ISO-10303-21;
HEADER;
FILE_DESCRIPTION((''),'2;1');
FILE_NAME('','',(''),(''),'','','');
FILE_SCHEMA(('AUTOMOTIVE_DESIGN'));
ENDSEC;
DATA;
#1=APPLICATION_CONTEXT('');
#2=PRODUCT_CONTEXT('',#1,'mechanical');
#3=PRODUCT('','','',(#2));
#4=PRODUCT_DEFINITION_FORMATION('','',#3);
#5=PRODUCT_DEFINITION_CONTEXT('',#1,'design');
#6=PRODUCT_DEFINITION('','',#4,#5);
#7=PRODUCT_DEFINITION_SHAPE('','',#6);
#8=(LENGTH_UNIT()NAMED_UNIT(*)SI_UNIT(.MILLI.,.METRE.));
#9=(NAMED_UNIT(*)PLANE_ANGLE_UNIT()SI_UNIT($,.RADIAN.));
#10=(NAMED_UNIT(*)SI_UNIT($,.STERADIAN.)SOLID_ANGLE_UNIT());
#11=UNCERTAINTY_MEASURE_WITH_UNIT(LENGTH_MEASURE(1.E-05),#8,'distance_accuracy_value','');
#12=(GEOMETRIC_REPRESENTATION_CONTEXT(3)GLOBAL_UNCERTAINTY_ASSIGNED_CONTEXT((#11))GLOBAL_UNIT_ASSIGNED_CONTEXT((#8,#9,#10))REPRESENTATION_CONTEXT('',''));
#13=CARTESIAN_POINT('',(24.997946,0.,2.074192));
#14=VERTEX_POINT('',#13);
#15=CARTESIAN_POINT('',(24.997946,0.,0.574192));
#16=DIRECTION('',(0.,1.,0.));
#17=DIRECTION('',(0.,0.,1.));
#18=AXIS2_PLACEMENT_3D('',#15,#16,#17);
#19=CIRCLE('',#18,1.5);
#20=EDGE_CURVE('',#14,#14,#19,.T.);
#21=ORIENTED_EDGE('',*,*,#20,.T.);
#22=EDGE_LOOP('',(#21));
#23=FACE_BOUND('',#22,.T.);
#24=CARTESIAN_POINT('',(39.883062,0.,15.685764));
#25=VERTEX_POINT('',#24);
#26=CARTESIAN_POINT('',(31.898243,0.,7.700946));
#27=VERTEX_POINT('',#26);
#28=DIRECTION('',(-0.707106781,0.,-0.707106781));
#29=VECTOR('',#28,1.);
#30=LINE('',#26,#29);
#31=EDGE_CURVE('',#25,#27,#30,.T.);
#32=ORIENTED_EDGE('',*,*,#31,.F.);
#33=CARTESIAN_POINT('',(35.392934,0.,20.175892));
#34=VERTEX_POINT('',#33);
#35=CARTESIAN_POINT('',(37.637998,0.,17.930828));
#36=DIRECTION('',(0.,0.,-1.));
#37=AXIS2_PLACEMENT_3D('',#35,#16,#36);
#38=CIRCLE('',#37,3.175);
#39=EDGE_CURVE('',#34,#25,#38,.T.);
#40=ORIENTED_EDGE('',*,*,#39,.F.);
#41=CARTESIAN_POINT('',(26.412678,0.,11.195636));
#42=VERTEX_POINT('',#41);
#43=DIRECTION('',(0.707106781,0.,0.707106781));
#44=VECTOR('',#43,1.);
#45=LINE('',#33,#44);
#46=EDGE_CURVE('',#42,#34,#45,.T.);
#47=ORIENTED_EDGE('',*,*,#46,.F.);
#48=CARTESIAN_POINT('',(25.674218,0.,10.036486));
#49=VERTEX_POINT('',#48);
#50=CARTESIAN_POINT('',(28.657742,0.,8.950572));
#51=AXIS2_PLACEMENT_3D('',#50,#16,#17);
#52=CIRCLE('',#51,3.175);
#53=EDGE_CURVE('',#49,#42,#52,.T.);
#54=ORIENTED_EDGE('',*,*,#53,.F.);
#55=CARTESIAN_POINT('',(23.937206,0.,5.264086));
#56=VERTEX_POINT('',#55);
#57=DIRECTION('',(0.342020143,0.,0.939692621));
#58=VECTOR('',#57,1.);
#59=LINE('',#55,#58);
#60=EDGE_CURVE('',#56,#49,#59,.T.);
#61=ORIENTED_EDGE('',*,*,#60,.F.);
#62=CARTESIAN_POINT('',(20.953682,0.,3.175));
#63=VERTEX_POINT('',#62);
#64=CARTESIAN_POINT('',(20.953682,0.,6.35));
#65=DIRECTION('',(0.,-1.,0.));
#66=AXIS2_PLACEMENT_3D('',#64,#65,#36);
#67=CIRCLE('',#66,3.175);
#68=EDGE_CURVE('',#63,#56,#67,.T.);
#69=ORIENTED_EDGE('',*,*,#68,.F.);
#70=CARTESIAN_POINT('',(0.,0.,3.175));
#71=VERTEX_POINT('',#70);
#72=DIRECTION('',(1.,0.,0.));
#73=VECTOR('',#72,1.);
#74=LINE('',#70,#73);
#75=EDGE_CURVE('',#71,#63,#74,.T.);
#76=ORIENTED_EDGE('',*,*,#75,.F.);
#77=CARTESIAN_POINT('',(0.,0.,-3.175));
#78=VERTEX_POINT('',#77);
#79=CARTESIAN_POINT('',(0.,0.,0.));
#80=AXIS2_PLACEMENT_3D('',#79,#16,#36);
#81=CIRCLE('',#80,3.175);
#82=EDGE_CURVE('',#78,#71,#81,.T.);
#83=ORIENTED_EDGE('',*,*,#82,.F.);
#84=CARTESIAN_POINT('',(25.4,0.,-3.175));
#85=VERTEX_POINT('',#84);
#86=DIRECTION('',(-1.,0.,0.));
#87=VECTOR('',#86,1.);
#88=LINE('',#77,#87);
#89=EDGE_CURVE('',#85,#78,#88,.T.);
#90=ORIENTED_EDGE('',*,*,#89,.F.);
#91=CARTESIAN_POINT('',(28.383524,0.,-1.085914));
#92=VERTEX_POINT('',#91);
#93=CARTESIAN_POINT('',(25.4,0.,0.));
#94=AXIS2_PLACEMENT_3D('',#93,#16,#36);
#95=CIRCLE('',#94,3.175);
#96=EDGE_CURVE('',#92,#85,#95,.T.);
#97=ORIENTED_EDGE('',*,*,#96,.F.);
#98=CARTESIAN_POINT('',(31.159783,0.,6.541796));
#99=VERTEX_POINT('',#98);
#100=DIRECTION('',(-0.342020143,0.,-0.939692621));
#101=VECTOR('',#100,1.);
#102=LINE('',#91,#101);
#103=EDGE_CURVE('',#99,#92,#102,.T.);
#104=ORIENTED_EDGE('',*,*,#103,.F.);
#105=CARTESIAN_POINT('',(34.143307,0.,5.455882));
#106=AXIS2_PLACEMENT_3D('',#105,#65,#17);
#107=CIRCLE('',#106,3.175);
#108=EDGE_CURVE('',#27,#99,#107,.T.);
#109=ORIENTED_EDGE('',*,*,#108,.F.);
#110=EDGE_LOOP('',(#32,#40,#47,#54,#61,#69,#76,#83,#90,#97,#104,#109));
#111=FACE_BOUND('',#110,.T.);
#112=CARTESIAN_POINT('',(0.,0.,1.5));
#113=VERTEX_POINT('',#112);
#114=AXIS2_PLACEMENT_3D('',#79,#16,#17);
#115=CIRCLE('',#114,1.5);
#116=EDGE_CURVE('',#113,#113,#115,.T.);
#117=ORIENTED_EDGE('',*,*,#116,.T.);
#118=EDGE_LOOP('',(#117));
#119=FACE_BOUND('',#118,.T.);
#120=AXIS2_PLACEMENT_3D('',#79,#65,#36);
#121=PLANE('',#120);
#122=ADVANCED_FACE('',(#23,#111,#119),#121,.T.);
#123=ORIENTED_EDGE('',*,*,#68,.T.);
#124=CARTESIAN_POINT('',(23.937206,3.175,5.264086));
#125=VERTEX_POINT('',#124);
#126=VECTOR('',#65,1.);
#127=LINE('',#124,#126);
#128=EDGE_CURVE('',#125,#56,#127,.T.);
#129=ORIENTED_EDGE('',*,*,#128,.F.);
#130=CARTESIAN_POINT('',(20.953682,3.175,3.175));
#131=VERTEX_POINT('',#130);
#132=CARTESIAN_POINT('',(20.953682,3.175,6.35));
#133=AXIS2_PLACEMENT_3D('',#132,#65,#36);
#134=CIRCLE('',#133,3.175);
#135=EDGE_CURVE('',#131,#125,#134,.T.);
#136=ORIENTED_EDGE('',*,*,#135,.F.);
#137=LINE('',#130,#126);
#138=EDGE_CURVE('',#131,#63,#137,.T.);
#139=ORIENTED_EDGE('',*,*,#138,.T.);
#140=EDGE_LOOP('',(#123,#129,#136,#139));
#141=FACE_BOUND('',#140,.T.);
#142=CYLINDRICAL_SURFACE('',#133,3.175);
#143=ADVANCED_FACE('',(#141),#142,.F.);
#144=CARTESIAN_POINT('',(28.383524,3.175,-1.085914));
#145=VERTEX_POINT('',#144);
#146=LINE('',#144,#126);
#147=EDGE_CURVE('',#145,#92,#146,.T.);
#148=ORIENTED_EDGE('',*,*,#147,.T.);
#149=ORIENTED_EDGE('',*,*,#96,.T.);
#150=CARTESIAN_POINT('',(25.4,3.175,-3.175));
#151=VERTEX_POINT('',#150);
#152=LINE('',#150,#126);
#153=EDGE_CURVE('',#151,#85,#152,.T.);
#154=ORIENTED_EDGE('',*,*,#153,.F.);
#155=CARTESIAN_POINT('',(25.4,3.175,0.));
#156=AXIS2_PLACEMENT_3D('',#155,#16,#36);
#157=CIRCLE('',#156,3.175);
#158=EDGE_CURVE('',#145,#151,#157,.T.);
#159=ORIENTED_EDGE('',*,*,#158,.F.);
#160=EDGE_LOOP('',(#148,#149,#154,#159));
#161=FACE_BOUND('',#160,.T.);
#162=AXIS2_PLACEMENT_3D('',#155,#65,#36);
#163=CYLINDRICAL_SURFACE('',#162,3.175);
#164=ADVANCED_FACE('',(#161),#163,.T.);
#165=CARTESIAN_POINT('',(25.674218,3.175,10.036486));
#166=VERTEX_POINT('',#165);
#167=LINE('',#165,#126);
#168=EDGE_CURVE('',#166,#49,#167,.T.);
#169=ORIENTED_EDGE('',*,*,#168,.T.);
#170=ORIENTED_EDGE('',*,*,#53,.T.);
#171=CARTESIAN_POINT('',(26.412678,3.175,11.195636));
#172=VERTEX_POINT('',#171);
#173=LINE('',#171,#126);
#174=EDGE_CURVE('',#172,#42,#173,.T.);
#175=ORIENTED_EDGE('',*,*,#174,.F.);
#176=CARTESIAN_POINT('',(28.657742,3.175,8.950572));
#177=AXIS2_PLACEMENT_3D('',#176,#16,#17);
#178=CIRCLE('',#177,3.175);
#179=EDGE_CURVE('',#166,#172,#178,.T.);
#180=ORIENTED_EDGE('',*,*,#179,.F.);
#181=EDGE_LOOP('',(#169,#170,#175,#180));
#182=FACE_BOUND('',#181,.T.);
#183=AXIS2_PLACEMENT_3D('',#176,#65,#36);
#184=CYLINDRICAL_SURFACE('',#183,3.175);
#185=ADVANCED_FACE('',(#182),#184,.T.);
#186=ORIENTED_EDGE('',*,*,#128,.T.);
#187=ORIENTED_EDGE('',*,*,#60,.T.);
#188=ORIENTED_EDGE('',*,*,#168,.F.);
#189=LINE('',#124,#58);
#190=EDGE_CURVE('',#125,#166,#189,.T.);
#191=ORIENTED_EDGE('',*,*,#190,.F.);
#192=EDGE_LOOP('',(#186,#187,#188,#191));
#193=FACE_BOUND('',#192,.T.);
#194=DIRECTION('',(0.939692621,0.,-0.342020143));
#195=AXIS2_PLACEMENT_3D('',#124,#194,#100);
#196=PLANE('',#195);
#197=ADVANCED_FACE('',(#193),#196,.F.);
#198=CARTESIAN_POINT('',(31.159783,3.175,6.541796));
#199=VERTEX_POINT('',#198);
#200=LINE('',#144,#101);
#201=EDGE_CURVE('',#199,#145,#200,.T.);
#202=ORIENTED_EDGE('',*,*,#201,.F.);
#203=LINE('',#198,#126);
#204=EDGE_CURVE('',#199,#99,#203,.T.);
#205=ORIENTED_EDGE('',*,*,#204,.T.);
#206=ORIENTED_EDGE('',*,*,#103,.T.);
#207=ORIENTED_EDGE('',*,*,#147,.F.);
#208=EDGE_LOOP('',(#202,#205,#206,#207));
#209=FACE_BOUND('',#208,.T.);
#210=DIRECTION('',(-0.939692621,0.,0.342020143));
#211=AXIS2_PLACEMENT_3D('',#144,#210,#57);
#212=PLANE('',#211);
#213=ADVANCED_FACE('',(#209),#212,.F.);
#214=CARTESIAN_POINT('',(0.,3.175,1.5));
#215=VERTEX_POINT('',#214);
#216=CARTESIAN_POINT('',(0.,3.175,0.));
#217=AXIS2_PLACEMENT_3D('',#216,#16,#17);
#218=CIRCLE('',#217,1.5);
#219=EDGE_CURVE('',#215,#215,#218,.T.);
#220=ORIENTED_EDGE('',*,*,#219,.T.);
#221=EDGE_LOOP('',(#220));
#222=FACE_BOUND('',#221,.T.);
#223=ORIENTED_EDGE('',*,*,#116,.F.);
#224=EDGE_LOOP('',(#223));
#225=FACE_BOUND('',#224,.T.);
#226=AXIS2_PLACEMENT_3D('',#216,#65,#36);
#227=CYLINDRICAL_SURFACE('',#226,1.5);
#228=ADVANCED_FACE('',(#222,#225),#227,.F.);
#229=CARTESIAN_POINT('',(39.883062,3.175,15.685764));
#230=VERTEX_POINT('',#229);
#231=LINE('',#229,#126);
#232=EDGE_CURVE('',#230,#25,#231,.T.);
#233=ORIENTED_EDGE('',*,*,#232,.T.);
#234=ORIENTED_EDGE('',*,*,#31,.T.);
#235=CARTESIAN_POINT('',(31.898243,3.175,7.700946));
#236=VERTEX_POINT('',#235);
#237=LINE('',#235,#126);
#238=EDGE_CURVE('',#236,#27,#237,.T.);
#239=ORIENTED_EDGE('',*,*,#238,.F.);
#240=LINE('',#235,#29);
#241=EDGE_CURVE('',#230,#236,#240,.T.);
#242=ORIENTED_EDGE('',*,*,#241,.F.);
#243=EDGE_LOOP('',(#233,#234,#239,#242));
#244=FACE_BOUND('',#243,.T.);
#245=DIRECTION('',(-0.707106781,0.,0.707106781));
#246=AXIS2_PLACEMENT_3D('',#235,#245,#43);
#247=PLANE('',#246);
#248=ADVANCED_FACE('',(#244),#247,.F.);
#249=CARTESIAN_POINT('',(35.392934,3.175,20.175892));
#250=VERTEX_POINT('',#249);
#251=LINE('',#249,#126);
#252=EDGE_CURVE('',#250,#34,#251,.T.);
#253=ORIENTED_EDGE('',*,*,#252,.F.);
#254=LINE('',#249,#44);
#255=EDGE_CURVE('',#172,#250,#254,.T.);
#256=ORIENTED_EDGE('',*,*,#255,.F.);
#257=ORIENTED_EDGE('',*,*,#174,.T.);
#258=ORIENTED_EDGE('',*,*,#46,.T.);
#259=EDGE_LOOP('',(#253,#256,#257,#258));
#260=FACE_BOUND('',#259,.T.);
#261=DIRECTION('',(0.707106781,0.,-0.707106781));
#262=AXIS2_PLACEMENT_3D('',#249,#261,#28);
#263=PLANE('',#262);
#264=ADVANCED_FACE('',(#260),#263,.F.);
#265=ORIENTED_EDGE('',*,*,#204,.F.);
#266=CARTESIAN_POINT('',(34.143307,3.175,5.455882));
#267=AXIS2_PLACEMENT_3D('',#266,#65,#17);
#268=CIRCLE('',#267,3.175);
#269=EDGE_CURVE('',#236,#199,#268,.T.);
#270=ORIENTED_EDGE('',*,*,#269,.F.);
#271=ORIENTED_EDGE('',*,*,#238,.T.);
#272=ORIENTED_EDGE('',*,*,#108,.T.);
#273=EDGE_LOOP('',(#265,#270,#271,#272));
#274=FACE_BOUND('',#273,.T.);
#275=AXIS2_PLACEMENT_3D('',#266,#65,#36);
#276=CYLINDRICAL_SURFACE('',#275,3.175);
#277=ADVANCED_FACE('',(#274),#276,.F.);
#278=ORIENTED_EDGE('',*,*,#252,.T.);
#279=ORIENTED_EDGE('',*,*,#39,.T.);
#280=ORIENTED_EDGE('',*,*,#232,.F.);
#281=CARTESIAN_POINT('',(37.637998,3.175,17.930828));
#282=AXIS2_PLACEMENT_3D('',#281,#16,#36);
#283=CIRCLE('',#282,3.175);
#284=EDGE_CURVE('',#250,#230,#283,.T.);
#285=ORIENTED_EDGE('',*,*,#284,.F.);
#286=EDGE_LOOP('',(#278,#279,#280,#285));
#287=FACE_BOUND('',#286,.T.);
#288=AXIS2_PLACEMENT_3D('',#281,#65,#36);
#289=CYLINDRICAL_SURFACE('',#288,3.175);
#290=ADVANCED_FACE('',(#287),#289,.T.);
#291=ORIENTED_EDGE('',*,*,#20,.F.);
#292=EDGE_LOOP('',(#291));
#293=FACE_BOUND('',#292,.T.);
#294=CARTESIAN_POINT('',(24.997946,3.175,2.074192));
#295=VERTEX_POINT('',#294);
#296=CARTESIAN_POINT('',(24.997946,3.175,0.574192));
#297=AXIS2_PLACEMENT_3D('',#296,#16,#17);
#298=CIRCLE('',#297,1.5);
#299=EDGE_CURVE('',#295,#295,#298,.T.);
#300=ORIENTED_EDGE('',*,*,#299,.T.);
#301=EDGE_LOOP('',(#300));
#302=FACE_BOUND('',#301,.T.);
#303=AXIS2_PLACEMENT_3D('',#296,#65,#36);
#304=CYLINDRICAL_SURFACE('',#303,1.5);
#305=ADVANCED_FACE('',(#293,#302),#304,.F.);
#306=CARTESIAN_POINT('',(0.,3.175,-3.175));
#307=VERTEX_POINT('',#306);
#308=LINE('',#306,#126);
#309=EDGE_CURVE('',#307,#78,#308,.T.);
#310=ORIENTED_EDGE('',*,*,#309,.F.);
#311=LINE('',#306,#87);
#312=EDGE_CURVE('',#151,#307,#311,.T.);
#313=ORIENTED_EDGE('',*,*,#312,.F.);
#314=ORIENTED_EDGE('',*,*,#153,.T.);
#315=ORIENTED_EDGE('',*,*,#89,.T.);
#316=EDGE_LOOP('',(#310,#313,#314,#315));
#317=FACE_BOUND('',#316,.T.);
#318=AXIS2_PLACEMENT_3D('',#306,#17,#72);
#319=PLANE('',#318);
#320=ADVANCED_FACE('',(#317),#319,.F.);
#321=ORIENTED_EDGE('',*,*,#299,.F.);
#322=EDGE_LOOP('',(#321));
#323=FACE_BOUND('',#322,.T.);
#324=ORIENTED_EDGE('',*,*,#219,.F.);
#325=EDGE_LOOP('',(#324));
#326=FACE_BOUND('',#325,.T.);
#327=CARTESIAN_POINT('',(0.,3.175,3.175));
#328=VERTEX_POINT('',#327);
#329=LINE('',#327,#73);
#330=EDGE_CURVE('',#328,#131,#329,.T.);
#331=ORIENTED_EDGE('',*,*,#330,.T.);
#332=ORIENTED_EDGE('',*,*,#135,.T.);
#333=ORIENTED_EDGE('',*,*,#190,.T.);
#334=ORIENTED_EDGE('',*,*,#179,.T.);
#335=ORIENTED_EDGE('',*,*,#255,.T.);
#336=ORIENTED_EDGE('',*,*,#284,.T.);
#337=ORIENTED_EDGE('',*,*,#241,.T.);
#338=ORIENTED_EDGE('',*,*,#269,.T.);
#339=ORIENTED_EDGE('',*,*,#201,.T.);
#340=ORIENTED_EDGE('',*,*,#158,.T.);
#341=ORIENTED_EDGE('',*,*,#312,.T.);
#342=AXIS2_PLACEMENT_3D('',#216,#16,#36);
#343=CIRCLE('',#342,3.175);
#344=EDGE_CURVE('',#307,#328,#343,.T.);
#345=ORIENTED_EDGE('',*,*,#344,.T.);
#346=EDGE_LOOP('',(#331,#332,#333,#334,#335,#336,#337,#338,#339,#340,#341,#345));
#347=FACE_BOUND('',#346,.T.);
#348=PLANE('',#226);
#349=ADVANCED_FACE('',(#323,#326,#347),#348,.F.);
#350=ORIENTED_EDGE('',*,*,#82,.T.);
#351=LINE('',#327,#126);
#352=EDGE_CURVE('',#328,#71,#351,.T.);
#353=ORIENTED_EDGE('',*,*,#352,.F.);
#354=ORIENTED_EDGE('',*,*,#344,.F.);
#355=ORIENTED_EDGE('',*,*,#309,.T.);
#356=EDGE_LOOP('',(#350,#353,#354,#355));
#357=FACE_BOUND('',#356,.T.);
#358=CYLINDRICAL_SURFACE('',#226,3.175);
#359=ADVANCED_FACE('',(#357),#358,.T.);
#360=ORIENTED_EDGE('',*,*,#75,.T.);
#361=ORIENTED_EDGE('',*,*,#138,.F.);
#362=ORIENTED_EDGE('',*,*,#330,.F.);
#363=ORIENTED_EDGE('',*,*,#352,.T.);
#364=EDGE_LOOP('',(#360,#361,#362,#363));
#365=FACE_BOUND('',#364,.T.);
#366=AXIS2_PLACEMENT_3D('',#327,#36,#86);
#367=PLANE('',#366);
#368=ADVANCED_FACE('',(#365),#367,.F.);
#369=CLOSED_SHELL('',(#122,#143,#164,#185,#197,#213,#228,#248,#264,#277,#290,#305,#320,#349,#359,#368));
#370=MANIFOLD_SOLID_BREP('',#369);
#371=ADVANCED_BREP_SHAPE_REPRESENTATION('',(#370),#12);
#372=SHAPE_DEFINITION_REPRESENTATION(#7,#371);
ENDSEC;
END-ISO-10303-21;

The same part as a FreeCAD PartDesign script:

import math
import FreeCAD as App
import Part
import Sketcher
Q = App.Units.Quantity

doc = App.newDocument("Part")
body = doc.addObject("PartDesign::Body", "Body")

# Sketch on XZ plane
sketch1 = doc.addObject("Sketcher::SketchObject", "Sketch")
body.addObject(sketch1)
sketch1.AttachmentSupport = (doc.XZ_Plane, [""])
sketch1.MapMode = "FlatFace"
sketch1.addGeometry([
    Part.LineSegment(App.Vector(0, 3.2, 0), App.Vector(21, 3.2, 0)),  # 0
    Part.ArcOfCircle(Part.Circle(App.Vector(21, 6.3, 0), App.Vector(0, 0, 1), 3.2), math.radians(-90), math.radians(-20)),  # 1
    Part.LineSegment(App.Vector(23.9, 5.3, 0), App.Vector(25.7, 10, 0)),  # 2
    Part.ArcOfCircle(Part.Circle(App.Vector(28.7, 9, 0), App.Vector(0, 0, 1), 3.2), math.radians(135), math.radians(160)),  # 3
    Part.LineSegment(App.Vector(26.4, 11.2, 0), App.Vector(35.4, 20.2, 0)),  # 4
    Part.ArcOfCircle(Part.Circle(App.Vector(37.6, 17.9, 0), App.Vector(0, 0, 1), 3.2), math.radians(-45), math.radians(135)),  # 5
    Part.LineSegment(App.Vector(39.9, 15.7, 0), App.Vector(31.9, 7.7, 0)),  # 6
    Part.ArcOfCircle(Part.Circle(App.Vector(34.1, 5.5, 0), App.Vector(0, 0, 1), 3.2), math.radians(135), math.radians(160)),  # 7
    Part.LineSegment(App.Vector(31.2, 6.5, 0), App.Vector(28.4, -1.1, 0)),  # 8
    Part.ArcOfCircle(Part.Circle(App.Vector(25.4, 0, 0), App.Vector(0, 0, 1), 3.2), math.radians(-90), math.radians(-20)),  # 9
    Part.LineSegment(App.Vector(25.4, -3.2, 0), App.Vector(0, -3.2, 0)),  # 10
    Part.ArcOfCircle(Part.Circle(App.Vector(0, 0, 0), App.Vector(0, 0, 1), 3.2), math.radians(90), math.radians(270)),  # 11
    Part.Circle(App.Vector(25, 0.6, 0), App.Vector(0, 0, 1), 1.5),  # 12
    Part.Circle(App.Vector(0, 0, 0), App.Vector(0, 0, 1), 1.5),  # 13
], False)
sketch1.addConstraint([
    Sketcher.Constraint("Tangent", 0, 2, 1, 1),
    Sketcher.Constraint("Tangent", 1, 2, 2, 1),
    Sketcher.Constraint("Tangent", 2, 2, 3, 2),
    Sketcher.Constraint("Tangent", 3, 1, 4, 1),
    Sketcher.Constraint("Tangent", 4, 2, 5, 2),
    Sketcher.Constraint("Tangent", 5, 1, 6, 1),
    Sketcher.Constraint("Tangent", 6, 2, 7, 1),
    Sketcher.Constraint("Tangent", 7, 2, 8, 1),
    Sketcher.Constraint("Tangent", 8, 2, 9, 2),
    Sketcher.Constraint("Tangent", 9, 1, 10, 1),
    Sketcher.Constraint("Tangent", 10, 2, 11, 2),
    Sketcher.Constraint("Tangent", 11, 1, 0, 1),
    Sketcher.Constraint("Horizontal", 0),
    Sketcher.Constraint("Horizontal", 10),
    Sketcher.Constraint("Coincident", 11, 3, -1, 1),
    Sketcher.Constraint("Coincident", 13, 3, -1, 1),
    Sketcher.Constraint("Equal", 1, 3),
    Sketcher.Constraint("Equal", 3, 5),
    Sketcher.Constraint("Equal", 5, 7),
    Sketcher.Constraint("Equal", 7, 9),
    Sketcher.Constraint("Equal", 9, 11),
    Sketcher.Constraint("Equal", 12, 13),
    Sketcher.Constraint("Parallel", 4, 6),
    Sketcher.Constraint("Parallel", 2, 8),
    Sketcher.Constraint("DistanceX", 10, 2, 10, 1, Q("1 in")),
    Sketcher.Constraint("Angle", 2, Q("70 deg")),
    Sketcher.Constraint("Angle", 4, Q("45 deg")),
    Sketcher.Constraint("Radius", 1, Q("0.125 in")),
    Sketcher.Constraint("Distance", 4, Q("0.5 in")),
    Sketcher.Constraint("Diameter", 12, 3.0),
    Sketcher.Constraint("DistanceY", 1, 2, 2, 2, 4.7724),
    Sketcher.Constraint("DistanceX", 3, 3, 6, 2, 3.240501),
    Sketcher.Constraint("DistanceY", 12, 3, 3, 3, 8.37638),
    Sketcher.Constraint("DistanceX", 12, 3, 7, 3, 9.145361),
])
pad1 = doc.addObject("PartDesign::Pad", "Pad")
body.addObject(pad1)
pad1.Profile = sketch1
pad1.Length = Q("0.125 in")
pad1.Reversed = True

doc.recompute()
